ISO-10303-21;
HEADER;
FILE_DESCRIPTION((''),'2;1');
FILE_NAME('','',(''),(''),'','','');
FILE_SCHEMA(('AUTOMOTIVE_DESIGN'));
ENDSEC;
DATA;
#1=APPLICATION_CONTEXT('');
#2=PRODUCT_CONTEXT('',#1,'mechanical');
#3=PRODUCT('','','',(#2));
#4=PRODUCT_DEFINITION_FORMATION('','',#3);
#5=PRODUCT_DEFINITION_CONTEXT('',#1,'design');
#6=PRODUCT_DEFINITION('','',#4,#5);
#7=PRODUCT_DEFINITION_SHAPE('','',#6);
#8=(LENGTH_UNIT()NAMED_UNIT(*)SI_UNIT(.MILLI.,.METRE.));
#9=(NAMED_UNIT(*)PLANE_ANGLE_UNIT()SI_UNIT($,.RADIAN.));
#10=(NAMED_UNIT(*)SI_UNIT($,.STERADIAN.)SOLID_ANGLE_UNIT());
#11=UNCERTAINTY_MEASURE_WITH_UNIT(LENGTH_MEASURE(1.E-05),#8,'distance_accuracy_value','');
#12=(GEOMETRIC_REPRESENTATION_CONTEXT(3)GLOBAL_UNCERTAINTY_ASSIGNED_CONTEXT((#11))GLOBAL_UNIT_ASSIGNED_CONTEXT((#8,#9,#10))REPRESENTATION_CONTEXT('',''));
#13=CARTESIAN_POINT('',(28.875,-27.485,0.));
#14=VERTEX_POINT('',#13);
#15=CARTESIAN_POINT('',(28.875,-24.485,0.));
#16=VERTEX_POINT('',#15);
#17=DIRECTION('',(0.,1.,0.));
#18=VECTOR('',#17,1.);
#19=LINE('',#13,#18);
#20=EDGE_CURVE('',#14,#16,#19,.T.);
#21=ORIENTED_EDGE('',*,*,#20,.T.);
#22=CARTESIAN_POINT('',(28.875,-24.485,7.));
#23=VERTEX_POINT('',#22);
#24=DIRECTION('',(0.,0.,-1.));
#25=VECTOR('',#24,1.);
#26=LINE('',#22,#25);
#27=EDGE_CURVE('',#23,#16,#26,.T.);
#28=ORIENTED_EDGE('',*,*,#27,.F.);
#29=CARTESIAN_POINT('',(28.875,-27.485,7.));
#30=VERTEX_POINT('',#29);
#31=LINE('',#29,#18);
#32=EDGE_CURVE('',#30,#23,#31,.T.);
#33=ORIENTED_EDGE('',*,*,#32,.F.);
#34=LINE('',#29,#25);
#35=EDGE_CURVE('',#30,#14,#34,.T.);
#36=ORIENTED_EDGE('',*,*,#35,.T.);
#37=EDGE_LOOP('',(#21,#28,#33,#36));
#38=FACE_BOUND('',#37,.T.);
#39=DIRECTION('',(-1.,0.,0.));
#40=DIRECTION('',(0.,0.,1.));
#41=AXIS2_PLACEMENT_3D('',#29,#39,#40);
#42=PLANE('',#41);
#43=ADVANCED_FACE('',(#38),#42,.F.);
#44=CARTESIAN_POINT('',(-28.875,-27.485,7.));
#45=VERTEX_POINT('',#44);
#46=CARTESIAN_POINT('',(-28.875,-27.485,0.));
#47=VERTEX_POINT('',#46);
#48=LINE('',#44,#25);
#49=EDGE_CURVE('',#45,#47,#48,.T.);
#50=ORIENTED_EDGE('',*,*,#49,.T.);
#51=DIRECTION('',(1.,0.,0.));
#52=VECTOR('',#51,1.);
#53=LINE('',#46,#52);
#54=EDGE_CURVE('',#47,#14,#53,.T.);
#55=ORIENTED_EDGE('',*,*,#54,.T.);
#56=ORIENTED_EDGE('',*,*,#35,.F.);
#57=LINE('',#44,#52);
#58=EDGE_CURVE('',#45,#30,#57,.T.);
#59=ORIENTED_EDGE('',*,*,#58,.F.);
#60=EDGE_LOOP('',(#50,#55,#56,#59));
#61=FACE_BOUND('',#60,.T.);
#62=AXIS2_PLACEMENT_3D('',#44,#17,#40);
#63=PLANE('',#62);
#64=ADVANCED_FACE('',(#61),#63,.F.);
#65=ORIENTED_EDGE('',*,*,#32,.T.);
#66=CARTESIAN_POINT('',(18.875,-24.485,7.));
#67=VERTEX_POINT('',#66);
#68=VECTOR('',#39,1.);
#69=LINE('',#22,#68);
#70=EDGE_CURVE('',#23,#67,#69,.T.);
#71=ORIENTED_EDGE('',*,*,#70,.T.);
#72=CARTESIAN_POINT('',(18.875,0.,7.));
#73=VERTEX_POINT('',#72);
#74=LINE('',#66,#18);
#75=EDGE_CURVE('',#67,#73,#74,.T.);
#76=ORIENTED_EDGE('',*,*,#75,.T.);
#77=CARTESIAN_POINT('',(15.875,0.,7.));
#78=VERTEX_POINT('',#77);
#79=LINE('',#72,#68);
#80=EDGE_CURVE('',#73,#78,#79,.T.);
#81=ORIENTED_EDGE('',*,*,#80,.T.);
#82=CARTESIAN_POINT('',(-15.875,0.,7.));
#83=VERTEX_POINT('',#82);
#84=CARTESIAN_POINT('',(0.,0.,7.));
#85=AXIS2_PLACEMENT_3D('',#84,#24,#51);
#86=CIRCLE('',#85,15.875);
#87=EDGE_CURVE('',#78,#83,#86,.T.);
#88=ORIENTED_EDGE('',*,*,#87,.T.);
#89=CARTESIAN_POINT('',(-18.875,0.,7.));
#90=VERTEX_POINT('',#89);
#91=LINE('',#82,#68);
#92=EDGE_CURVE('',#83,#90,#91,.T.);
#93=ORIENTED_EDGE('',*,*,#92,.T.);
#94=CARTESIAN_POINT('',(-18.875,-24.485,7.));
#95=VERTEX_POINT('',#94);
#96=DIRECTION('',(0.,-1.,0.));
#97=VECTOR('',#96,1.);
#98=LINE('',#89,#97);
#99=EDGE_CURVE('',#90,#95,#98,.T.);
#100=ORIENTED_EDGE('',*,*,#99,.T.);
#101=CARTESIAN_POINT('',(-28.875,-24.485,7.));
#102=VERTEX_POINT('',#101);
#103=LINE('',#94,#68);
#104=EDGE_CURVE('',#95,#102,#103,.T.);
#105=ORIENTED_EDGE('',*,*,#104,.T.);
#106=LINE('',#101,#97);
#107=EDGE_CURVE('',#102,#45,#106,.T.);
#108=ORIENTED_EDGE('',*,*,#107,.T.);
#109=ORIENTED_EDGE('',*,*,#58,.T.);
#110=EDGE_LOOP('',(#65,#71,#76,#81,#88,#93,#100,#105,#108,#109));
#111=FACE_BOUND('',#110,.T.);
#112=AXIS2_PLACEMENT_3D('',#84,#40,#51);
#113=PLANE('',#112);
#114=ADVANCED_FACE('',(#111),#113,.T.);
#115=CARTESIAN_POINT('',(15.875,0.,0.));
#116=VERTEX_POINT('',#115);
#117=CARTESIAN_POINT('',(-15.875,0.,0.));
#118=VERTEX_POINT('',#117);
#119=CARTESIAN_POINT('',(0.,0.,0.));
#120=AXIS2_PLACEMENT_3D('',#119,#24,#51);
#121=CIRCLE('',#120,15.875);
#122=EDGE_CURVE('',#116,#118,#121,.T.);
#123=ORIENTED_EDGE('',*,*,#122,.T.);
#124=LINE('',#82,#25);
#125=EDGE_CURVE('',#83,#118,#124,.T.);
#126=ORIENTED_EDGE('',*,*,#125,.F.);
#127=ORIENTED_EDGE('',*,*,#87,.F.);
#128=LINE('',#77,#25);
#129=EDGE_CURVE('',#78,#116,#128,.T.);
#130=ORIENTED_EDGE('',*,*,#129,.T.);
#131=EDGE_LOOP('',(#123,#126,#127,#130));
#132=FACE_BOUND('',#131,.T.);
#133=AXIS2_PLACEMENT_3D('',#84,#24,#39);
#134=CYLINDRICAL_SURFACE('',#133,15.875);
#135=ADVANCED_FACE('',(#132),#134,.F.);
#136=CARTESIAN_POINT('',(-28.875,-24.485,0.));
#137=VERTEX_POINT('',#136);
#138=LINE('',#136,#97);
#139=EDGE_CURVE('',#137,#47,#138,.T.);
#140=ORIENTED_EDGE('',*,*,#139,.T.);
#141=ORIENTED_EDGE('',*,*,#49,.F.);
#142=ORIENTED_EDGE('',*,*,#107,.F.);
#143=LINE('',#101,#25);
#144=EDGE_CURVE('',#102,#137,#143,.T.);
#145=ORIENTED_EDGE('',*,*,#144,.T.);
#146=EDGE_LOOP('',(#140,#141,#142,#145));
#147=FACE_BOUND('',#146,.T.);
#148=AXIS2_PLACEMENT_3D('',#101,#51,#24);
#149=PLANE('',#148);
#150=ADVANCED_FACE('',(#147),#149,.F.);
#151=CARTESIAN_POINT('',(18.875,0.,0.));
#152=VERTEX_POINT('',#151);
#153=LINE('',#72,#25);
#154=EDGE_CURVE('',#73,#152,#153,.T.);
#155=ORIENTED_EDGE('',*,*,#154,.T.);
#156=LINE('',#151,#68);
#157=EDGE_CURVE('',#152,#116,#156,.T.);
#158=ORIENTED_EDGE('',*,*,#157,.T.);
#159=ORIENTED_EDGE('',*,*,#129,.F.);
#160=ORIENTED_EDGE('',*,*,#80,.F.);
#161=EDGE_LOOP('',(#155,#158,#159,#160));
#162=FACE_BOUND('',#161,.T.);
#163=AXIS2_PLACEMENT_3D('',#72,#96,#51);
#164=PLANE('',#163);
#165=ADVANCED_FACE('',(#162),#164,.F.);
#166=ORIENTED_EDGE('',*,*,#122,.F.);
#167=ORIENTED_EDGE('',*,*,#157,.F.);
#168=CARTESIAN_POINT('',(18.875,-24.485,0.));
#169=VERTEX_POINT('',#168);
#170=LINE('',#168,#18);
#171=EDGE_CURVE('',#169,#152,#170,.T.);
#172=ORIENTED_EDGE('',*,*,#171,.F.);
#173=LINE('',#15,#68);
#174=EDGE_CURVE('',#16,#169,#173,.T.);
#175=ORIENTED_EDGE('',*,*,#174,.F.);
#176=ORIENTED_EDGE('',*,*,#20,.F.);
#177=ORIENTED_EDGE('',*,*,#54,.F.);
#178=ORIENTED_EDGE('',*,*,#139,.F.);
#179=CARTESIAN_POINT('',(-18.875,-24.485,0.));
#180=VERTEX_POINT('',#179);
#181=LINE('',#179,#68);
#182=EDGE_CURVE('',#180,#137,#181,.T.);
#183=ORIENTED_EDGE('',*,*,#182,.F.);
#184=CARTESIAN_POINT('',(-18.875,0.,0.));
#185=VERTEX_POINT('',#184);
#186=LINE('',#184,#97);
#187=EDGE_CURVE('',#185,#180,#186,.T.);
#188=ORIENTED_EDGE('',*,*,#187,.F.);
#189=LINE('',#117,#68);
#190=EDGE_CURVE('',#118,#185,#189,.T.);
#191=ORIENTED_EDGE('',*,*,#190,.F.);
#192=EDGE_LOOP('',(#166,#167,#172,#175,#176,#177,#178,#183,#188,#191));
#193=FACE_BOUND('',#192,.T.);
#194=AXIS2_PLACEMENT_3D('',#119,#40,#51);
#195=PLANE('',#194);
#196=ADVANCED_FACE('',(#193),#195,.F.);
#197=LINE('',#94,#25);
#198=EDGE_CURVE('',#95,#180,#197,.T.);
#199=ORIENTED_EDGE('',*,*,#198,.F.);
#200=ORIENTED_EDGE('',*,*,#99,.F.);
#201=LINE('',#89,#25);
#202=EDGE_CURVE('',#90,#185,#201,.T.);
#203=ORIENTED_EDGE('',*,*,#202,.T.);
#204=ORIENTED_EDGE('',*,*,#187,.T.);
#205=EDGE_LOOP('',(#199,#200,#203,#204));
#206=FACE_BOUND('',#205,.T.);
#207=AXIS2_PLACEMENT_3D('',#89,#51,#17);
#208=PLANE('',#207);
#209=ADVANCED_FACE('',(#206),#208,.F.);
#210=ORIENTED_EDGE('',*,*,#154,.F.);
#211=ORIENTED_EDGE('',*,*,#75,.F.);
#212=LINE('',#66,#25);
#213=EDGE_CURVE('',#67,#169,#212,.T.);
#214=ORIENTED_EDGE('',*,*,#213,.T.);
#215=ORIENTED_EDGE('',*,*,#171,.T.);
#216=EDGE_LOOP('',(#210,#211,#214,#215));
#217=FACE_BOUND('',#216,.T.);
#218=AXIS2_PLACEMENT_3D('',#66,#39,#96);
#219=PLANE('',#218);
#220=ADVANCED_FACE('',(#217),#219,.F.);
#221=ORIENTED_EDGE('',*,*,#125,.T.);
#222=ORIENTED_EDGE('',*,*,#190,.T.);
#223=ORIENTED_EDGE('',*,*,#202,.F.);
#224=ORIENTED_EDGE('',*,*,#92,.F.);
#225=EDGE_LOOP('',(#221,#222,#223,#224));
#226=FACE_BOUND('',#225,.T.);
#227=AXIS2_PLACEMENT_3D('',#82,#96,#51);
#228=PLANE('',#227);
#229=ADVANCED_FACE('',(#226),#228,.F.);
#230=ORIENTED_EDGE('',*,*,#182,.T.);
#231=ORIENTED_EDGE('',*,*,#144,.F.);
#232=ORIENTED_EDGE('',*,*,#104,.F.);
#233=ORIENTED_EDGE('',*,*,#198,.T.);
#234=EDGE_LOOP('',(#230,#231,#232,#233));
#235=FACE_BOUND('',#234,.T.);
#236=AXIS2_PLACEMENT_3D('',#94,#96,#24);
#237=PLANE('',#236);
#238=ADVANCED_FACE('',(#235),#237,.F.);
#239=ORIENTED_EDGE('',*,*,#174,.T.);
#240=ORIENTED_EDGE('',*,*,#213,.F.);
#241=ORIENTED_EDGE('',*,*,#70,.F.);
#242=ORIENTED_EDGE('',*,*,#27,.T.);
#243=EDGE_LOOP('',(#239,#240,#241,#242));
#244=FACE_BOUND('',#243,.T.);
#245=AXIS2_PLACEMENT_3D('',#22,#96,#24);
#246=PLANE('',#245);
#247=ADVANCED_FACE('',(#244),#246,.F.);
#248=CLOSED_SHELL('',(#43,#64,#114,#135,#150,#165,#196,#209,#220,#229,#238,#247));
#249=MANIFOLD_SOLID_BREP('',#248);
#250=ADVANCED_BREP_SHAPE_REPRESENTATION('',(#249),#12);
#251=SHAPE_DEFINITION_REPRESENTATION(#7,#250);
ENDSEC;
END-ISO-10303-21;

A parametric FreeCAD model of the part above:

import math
import FreeCAD as App
import Part
import Sketcher

V = App.Vector
Q = App.Units.Quantity

doc = App.newDocument("Part")
body = doc.addObject("PartDesign::Body", "Body")

# Sketch on XY plane
sketch1 = doc.addObject("Sketcher::SketchObject", "Sketch")
body.addObject(sketch1)
sketch1.AttachmentSupport = (doc.XY_Plane, [""])
sketch1.MapMode = "FlatFace"
sketch1.addGeometry(Part.LineSegment(V(-15.9, 0, 0), V(-18.9, 0, 0)), False)
sketch1.addGeometry(Part.LineSegment(V(-18.9, 0, 0), V(-18.9, -24.5, 0)), False)
sketch1.addGeometry(Part.LineSegment(V(-18.9, -24.5, 0), V(-28.9, -24.5, 0)), False)
sketch1.addGeometry(Part.LineSegment(V(-28.9, -24.5, 0), V(-28.9, -27.5, 0)), False)
sketch1.addGeometry(Part.LineSegment(V(-28.9, -27.5, 0), V(28.9, -27.5, 0)), False)
sketch1.addGeometry(Part.LineSegment(V(28.9, -27.5, 0), V(28.9, -24.5, 0)), False)
sketch1.addGeometry(Part.LineSegment(V(28.9, -24.5, 0), V(18.9, -24.5, 0)), False)
sketch1.addGeometry(Part.LineSegment(V(18.9, -24.5, 0), V(18.9, 0, 0)), False)
sketch1.addGeometry(Part.LineSegment(V(18.9, 0, 0), V(15.9, 0, 0)), False)
sketch1.addGeometry(Part.ArcOfCircle(Part.Circle(V(0, 0, 0), V(0, 0, 1), 15.9), math.radians(180), math.radians(360)), False)
sketch1.addConstraint(Sketcher.Constraint("Coincident", 0, 2, 1, 1))
sketch1.addConstraint(Sketcher.Constraint("Coincident", 1, 2, 2, 1))
sketch1.addConstraint(Sketcher.Constraint("Coincident", 2, 2, 3, 1))
sketch1.addConstraint(Sketcher.Constraint("Coincident", 3, 2, 4, 1))
sketch1.addConstraint(Sketcher.Constraint("Coincident", 4, 2, 5, 1))
sketch1.addConstraint(Sketcher.Constraint("Coincident", 5, 2, 6, 1))
sketch1.addConstraint(Sketcher.Constraint("Coincident", 6, 2, 7, 1))
sketch1.addConstraint(Sketcher.Constraint("Coincident", 7, 2, 8, 1))
sketch1.addConstraint(Sketcher.Constraint("Coincident", 8, 2, 9, 2))
sketch1.addConstraint(Sketcher.Constraint("Coincident", 9, 1, 0, 1))
sketch1.addConstraint(Sketcher.Constraint("Horizontal", 0))
sketch1.addConstraint(Sketcher.Constraint("Vertical", 1))
sketch1.addConstraint(Sketcher.Constraint("Horizontal", 2))
sketch1.addConstraint(Sketcher.Constraint("Vertical", 3))
sketch1.addConstraint(Sketcher.Constraint("Horizontal", 4))
sketch1.addConstraint(Sketcher.Constraint("Vertical", 5))
sketch1.addConstraint(Sketcher.Constraint("Horizontal", 6))
sketch1.addConstraint(Sketcher.Constraint("Vertical", 7))
sketch1.addConstraint(Sketcher.Constraint("Horizontal", 8))
sketch1.addConstraint(Sketcher.Constraint("Coincident", 9, 3, -1, 1))
sketch1.addConstraint(Sketcher.Constraint("Symmetric", 0, 2, 7, 2, -1, 1))
sketch1.addConstraint(Sketcher.Constraint("Symmetric", 2, 2, 5, 2, -2))
sketch1.addConstraint(Sketcher.Constraint("PointOnObject", 0, 2, -1))
sketch1.addConstraint(Sketcher.Constraint("Equal", 8, 3))
sketch1.addConstraint(Sketcher.Constraint("DistanceX", 0, 2, 0, 1, Q("3 mm")))
sketch1.addConstraint(Sketcher.Constraint("DistanceX", 2, 2, 2, 1, Q("10 mm")))
sketch1.addConstraint(Sketcher.Constraint("Radius", 9, Q("15.875 mm")))
sketch1.addConstraint(Sketcher.Constraint("DistanceY", 1, 2, 1, 1, Q("24.485 mm")))
pad1 = doc.addObject("PartDesign::Pad", "Pad")
body.addObject(pad1)
pad1.Profile = sketch1
pad1.Length = 7

doc.recompute()
